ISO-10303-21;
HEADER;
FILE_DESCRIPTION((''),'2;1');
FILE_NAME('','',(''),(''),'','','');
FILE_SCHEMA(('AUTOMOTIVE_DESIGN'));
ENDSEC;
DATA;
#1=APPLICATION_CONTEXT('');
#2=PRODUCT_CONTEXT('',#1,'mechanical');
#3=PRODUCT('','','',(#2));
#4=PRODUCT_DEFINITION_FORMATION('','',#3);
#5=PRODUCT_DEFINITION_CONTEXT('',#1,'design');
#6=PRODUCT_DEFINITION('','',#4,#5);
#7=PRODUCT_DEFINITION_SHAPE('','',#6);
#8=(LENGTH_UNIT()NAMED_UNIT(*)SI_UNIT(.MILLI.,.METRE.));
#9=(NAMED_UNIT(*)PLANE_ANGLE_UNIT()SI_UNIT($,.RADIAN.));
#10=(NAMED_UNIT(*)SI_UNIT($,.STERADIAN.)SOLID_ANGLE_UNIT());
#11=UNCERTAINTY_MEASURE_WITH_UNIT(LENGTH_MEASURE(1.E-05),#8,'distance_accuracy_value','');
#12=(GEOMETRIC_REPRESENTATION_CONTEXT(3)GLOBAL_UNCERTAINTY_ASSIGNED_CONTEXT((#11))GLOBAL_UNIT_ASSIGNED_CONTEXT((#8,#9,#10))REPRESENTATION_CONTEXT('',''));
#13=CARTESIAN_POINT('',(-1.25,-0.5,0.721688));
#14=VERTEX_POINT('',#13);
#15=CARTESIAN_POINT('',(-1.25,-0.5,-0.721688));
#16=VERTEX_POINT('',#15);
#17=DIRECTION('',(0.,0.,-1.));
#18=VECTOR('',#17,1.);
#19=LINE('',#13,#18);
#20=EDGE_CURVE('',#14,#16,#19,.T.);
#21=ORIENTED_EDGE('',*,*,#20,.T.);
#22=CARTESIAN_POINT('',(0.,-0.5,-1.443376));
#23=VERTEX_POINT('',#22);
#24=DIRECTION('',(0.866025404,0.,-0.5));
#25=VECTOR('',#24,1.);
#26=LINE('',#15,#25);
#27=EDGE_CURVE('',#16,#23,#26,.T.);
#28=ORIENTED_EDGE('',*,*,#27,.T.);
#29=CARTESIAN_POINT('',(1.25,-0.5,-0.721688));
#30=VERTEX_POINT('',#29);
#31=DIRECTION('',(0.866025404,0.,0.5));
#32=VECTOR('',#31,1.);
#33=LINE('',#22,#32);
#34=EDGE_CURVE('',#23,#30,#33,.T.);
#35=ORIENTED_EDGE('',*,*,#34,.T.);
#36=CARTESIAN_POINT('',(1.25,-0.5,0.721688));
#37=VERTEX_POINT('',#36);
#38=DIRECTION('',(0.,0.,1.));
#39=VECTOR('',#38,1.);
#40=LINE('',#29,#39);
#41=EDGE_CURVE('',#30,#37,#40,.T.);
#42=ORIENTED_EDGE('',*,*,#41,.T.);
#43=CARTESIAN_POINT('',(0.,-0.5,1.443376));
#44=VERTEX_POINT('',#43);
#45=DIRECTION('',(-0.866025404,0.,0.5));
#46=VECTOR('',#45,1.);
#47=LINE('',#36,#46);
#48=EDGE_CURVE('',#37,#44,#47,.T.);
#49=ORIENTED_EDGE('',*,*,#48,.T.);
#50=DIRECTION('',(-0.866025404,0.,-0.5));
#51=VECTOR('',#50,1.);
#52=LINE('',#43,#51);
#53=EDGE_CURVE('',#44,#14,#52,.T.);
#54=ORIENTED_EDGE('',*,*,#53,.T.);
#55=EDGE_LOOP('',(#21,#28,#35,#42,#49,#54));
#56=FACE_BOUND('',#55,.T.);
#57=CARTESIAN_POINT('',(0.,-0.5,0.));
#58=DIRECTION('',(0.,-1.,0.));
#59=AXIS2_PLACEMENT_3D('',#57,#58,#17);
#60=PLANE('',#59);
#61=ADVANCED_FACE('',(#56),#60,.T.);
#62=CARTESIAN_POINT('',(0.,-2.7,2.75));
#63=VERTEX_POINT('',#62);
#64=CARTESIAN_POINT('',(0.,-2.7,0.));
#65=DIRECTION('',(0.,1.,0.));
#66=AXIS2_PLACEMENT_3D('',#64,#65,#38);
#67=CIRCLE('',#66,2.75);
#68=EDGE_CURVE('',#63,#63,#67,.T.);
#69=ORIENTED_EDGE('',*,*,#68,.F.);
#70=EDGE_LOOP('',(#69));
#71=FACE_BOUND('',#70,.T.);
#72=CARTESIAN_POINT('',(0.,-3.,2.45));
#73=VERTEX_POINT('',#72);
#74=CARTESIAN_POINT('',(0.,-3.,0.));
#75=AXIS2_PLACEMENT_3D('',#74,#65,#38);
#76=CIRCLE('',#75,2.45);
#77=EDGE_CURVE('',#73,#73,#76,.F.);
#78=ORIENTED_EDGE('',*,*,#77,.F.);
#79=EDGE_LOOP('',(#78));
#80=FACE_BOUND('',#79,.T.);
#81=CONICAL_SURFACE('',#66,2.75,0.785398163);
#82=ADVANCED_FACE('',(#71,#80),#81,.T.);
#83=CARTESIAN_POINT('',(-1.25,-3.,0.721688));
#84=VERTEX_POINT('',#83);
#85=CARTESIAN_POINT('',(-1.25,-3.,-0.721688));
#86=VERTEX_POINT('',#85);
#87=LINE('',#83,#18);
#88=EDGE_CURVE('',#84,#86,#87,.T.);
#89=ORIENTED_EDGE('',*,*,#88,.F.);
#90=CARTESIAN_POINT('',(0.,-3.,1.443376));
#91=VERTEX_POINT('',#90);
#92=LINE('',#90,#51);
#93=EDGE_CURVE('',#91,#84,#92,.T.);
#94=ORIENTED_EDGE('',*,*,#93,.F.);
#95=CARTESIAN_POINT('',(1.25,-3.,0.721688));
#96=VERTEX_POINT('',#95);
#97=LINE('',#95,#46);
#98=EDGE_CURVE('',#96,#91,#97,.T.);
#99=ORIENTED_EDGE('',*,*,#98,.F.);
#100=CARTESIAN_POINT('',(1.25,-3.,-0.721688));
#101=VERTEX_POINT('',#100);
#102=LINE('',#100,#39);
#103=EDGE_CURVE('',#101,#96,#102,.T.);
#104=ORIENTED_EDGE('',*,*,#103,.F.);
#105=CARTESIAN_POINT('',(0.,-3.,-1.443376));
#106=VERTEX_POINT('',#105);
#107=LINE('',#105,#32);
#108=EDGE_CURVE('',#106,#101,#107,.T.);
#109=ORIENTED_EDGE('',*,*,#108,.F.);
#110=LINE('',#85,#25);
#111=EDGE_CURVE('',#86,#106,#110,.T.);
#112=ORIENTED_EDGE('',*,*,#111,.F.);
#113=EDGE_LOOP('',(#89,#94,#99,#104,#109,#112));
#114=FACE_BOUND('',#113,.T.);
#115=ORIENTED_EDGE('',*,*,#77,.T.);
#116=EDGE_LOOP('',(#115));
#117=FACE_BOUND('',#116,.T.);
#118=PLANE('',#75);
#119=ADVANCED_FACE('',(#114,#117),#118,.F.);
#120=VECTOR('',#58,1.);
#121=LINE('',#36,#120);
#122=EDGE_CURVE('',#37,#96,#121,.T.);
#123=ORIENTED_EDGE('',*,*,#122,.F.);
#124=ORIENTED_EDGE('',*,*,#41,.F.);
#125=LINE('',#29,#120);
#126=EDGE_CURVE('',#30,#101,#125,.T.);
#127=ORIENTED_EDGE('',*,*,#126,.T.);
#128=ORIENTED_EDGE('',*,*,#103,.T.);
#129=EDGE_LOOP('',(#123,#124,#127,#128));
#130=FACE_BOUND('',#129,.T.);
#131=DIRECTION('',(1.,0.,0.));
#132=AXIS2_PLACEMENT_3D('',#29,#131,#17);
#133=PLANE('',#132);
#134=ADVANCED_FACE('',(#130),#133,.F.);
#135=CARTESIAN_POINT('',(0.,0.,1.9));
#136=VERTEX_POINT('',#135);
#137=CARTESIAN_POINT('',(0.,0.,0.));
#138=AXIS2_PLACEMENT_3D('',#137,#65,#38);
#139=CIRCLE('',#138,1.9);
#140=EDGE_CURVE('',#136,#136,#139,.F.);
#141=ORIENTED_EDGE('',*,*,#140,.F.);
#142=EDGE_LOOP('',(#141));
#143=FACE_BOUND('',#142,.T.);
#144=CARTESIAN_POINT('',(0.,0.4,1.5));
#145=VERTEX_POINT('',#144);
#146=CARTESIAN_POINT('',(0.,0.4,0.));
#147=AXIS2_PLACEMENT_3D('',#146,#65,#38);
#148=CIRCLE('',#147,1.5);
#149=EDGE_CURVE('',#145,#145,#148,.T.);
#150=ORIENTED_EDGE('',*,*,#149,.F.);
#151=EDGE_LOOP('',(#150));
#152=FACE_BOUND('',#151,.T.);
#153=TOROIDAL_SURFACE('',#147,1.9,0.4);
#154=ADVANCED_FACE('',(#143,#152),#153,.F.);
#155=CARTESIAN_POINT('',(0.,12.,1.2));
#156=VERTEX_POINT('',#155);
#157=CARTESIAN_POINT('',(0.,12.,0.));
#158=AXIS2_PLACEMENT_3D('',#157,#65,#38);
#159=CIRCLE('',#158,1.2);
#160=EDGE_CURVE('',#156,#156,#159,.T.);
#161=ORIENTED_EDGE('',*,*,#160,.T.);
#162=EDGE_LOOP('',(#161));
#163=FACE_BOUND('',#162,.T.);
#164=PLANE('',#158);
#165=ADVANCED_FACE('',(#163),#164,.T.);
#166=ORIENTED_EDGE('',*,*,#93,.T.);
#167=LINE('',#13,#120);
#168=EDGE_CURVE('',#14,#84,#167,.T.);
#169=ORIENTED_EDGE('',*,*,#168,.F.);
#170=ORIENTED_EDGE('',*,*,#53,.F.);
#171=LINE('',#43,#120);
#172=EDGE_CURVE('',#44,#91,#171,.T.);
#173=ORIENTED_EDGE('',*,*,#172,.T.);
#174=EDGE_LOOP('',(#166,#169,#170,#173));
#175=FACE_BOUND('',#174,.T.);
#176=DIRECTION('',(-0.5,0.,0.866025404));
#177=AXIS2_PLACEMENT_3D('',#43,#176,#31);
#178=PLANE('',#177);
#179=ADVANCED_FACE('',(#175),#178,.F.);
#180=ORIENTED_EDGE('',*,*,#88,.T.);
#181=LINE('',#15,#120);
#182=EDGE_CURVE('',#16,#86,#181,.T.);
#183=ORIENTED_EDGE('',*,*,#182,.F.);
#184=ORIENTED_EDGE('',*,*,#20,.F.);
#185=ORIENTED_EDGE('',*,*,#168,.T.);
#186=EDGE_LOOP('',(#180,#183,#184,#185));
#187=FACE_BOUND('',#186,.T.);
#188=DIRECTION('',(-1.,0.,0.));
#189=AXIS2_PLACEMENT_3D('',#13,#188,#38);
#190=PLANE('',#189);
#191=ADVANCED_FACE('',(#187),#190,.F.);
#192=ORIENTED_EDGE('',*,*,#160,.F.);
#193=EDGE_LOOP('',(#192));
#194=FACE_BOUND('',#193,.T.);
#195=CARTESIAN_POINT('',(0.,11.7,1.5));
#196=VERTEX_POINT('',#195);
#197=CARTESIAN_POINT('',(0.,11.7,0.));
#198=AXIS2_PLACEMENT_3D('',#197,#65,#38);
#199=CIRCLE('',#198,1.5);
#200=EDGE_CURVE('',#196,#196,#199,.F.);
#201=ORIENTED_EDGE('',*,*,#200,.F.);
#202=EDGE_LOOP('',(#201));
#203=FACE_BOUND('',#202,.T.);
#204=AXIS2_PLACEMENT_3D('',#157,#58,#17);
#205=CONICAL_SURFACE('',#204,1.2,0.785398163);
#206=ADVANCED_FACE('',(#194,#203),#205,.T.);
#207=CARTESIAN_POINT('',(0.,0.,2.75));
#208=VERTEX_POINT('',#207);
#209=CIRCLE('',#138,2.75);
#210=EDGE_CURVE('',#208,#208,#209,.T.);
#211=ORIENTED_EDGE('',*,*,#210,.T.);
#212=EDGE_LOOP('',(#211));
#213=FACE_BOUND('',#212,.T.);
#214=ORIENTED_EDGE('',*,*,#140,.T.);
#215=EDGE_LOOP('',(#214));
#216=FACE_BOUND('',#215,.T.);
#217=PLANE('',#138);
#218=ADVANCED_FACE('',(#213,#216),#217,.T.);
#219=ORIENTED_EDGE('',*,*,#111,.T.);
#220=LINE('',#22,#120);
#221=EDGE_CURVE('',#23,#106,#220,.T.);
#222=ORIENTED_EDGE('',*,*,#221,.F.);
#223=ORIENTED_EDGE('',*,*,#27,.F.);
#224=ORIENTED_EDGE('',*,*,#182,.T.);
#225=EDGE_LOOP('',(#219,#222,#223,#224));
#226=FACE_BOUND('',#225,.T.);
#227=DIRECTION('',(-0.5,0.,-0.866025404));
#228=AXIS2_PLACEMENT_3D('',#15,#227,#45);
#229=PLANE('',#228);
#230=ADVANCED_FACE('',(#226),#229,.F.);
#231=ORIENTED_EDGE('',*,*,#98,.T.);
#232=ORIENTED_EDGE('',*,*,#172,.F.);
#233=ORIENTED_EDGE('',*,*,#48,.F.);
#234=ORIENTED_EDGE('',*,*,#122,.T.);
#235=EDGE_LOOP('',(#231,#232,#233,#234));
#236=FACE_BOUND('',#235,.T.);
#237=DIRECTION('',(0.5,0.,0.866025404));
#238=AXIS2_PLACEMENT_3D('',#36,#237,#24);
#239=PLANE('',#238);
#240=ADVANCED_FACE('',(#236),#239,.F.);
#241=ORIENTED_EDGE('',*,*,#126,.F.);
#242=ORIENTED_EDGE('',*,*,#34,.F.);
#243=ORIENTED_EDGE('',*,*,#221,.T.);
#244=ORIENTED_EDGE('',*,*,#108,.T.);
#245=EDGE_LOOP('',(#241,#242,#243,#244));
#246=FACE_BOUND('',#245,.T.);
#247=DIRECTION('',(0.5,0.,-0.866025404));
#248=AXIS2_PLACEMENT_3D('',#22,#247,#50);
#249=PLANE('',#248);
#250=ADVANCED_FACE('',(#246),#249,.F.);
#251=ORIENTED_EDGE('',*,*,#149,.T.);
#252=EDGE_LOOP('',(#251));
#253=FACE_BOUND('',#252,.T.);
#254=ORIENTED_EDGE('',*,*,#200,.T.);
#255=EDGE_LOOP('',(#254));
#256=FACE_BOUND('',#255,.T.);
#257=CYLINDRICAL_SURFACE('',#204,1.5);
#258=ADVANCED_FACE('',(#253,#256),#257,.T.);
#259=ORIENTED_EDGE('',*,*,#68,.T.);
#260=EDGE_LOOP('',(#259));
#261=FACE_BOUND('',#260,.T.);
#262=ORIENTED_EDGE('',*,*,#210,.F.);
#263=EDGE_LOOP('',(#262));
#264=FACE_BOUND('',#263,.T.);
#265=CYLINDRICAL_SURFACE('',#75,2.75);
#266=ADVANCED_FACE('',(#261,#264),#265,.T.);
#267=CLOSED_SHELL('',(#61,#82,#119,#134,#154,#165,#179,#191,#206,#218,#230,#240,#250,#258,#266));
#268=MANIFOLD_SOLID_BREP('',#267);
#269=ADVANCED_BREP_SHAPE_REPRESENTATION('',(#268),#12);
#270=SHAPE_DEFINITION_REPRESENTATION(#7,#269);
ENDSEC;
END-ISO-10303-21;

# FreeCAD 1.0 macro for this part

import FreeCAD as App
import Part
import Sketcher
Q = App.Units.Quantity


def edges_at(feature, points):
    """Names of the edges that pass closest to the given points."""
    edges = feature.Shape.Edges
    near = lambda p: min(range(len(edges)), key=lambda i: edges[i].distToShape(Part.Vertex(*p))[0])
    return sorted({f"Edge{near(p) + 1}" for p in points})


def add_polygon(sketch, points):
    """Adds a closed chain of lines whose ends are joined by coincident constraints."""
    first, n = sketch.GeometryCount, len(points)
    for a, b in zip(points, points[1:] + points[:1]):
        sketch.addGeometry(Part.LineSegment(App.Vector(*a, 0), App.Vector(*b, 0)), False)
    for i in range(n):
        sketch.addConstraint(Sketcher.Constraint("Coincident", first + i, 2, first + (i + 1) % n, 1))

doc = App.newDocument("Part")
params = doc.addObject("Spreadsheet::Sheet", "Params")
for row, (alias, value) in enumerate([
    ("sketch1_diameter", "3 mm"),
    ("pad1_length", "12 mm"),
    ("sketch2_diameter", "5.5 mm"),
    ("pad2_length", "3 mm"),
    ("fillet_radius", "0.4 mm"),
    ("chamfer_size", "0.3 mm"),
    ("pocket1_length", "2.5 mm"),
], start=1):
    params.set(f"A{row}", alias)
    params.set(f"B{row}", "=" + value)
    params.setAlias(f"B{row}", alias)

body = doc.addObject("PartDesign::Body", "Body")

# Sketch on XZ plane
sketch1 = body.newObject("Sketcher::SketchObject", "Sketch")
sketch1.AttachmentSupport = (doc.getObject("XZ_Plane"), [""])
sketch1.MapMode = "FlatFace"
sketch1.addGeometry(Part.Circle(App.Vector(0, 0, 0), App.Vector(0, 0, 1), 1.5), False)
sketch1.addConstraint([
    Sketcher.Constraint("Coincident", 0, 3, -1, 1),
    Sketcher.Constraint("Diameter", 0, 3.0),
])
sketch1.setExpression("Constraints[1]", "Params.sketch1_diameter")
pad1 = body.newObject("PartDesign::Pad", "Pad")
pad1.Profile = sketch1
pad1.setExpression("Length", "Params.pad1_length")
pad1.Reversed = True

# Sketch on XZ plane
sketch2 = body.newObject("Sketcher::SketchObject", "Sketch001")
sketch2.AttachmentSupport = (doc.getObject("XZ_Plane"), [""])
sketch2.MapMode = "FlatFace"
sketch2.addGeometry(Part.Circle(App.Vector(0, 0, 0), App.Vector(0, 0, 1), 2.8), False)
sketch2.addConstraint([
    Sketcher.Constraint("Coincident", 0, 3, -1, 1),
    Sketcher.Constraint("Diameter", 0, 5.5),
])
sketch2.setExpression("Constraints[1]", "Params.sketch2_diameter")
pad2 = body.newObject("PartDesign::Pad", "Pad001")
pad2.Profile = sketch2
pad2.setExpression("Length", "Params.pad2_length")
doc.recompute()

fillet = body.newObject("PartDesign::Fillet", "Fillet")
fillet.Base = (pad2, edges_at(pad2, [(0, 0, -1.5)]))
fillet.setExpression("Radius", "Params.fillet_radius")
doc.recompute()

chamfer = body.newObject("PartDesign::Chamfer", "Chamfer")
chamfer.Base = (fillet, edges_at(fillet, [(0, 12, -1.5), (0, -3, -2.75)]))
chamfer.setExpression("Size", "Params.chamfer_size")

# Sketch on XZ plane
sketch3 = body.newObject("Sketcher::SketchObject", "Sketch002")
sketch3.AttachmentSupport = (doc.getObject("XZ_Plane"), [""])
sketch3.MapMode = "FlatFace"
sketch3.AttachmentOffset = App.Placement(App.Vector(0, 0, 3), App.Rotation())
add_polygon(sketch3, [(0, 1.4), (-1.2, 0.7), (-1.2, -0.7), (0, -1.4), (1.2, -0.7), (1.2, 0.7)])  # lines 0-5
sketch3.addConstraint([
    Sketcher.Constraint("Vertical", 1),
    Sketcher.Constraint("Vertical", 4),
    Sketcher.Constraint("Symmetric", 0, 2, 3, 2, -1, 1),
    Sketcher.Constraint("Symmetric", 2, 2, 5, 2, -1, 1),
    Sketcher.Constraint("PointOnObject", 2, 2, -2),
    Sketcher.Constraint("Parallel", 2, 5),
    Sketcher.Constraint("Horizontal", 1, 2, 3, 2),
    Sketcher.Constraint("Angle", 0, Q("-150 deg")),
    Sketcher.Constraint("DistanceX", 1, 2, 3, 2, 2.5),
    Sketcher.Constraint("DistanceY", 1, 2, 1, 1, 1.443376),
])
pocket1 = body.newObject("PartDesign::Pocket", "Pocket")
pocket1.Profile = sketch3
pocket1.setExpression("Length", "Params.pocket1_length")

doc.recompute()
